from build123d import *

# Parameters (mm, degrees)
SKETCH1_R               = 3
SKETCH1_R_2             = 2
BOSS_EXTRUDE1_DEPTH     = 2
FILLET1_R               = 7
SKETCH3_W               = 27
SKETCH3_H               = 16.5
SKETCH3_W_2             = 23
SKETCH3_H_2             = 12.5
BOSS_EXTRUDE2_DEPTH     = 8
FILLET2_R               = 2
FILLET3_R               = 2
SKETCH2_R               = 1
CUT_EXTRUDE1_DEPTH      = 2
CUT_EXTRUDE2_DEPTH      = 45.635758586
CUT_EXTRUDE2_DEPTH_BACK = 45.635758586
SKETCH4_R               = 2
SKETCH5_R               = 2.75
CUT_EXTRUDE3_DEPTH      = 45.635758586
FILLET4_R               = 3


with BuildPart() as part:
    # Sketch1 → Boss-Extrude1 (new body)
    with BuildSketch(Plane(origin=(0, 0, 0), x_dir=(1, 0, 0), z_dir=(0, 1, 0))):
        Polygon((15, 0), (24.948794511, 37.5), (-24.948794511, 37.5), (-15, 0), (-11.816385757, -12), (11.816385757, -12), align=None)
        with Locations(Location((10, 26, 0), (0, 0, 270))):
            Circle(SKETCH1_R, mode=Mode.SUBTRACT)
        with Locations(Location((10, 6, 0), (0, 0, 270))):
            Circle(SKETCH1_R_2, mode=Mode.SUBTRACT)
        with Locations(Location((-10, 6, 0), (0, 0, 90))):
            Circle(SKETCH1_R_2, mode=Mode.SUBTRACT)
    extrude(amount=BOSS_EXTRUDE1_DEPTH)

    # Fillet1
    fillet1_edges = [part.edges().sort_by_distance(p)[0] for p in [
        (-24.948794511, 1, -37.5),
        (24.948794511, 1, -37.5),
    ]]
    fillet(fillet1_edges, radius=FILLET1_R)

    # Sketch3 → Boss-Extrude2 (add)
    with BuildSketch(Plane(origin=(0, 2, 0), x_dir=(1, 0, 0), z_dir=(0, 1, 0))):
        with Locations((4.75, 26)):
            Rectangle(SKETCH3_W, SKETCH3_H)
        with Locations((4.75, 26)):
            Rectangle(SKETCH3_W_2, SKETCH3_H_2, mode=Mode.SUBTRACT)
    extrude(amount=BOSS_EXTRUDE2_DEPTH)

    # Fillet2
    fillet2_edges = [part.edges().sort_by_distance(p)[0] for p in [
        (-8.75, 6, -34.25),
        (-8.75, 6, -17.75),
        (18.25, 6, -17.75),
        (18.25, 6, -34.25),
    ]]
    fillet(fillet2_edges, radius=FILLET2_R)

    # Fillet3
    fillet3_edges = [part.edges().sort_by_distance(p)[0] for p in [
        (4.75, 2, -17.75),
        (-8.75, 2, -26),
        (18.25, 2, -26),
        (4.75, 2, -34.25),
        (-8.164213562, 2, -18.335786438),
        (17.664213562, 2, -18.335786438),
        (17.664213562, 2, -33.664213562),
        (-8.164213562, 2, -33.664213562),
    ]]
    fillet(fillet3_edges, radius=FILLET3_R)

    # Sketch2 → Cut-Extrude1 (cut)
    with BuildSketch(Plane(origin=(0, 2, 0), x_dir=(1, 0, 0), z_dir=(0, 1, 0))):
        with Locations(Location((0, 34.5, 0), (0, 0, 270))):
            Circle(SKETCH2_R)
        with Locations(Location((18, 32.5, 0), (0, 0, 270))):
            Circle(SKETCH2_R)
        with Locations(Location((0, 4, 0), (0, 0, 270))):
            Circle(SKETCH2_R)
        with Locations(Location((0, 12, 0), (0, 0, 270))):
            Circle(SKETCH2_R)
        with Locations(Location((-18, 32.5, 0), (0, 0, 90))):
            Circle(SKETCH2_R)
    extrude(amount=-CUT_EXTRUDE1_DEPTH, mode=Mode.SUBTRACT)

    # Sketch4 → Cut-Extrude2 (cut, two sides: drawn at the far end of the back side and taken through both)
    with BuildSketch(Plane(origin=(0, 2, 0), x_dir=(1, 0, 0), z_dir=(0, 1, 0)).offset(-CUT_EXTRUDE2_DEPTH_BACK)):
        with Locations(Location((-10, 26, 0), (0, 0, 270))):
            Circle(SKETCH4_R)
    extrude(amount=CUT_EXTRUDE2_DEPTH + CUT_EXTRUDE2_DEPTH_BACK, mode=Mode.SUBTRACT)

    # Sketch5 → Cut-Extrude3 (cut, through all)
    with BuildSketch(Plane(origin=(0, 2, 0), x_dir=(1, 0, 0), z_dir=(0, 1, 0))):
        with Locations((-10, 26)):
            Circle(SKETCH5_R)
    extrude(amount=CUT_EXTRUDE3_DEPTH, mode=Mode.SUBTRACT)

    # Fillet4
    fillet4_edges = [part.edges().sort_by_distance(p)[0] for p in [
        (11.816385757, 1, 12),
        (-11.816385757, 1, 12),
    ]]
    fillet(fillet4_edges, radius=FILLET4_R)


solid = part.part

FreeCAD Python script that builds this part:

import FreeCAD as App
import Part
import Sketcher


def edges_at(feature, points):
    """Names of the edges that pass closest to the given points."""
    edges = feature.Shape.Edges
    near = lambda p: min(range(len(edges)), key=lambda i: edges[i].distToShape(Part.Vertex(*p))[0])
    return sorted({f"Edge{near(p) + 1}" for p in points})


def add_polygon(sketch, points):
    """Adds a closed chain of lines whose ends are joined by coincident constraints."""
    first, n = sketch.GeometryCount, len(points)
    for a, b in zip(points, points[1:] + points[:1]):
        sketch.addGeometry(Part.LineSegment(App.Vector(*a, 0), App.Vector(*b, 0)), False)
    for i in range(n):
        sketch.addConstraint(Sketcher.Constraint("Coincident", first + i, 2, first + (i + 1) % n, 1))

doc = App.newDocument("Part")
body = doc.addObject("PartDesign::Body", "Body")

# Sketch on XZ plane
sketch1 = body.newObject("Sketcher::SketchObject", "Sketch")
sketch1.AttachmentSupport = (doc.getObject("XZ_Plane"), [""])
sketch1.MapMode = "FlatFace"
add_polygon(sketch1, [(15, 0), (24.948795, -37.5), (-24.948795, -37.5), (-15, 0), (-11.816386, 12), (11.816386, 12)])  # lines 0-5
sketch1.addGeometry(Part.Circle(App.Vector(-10, -6, 0), App.Vector(0, 0, 1), 2), False)  # 6
sketch1.addGeometry(Part.Circle(App.Vector(10, -6, 0), App.Vector(0, 0, 1), 2), False)  # 7
sketch1.addGeometry(Part.Circle(App.Vector(10, -26, 0), App.Vector(0, 0, 1), 3), False)  # 8
sketch1.addConstraint(Sketcher.Constraint("Horizontal", 1))
sketch1.addConstraint(Sketcher.Constraint("Horizontal", 4))
sketch1.addConstraint(Sketcher.Constraint("Equal", 6, 7))
sketch1.addConstraint(Sketcher.Constraint("Symmetric", 2, 2, 5, 2, -1, 1))
sketch1.addConstraint(Sketcher.Constraint("Symmetric", 6, 3, 7, 3, -2))
sketch1.addConstraint(Sketcher.Constraint("PointOnObject", 2, 2, -1))
sketch1.addConstraint(Sketcher.Constraint("Parallel", 2, 3))
sketch1.addConstraint(Sketcher.Constraint("Parallel", 0, 5))
sketch1.addConstraint(Sketcher.Constraint("Vertical", 7, 3, 8, 3))
sketch1.addConstraint(Sketcher.Constraint("Equal", 0, 2))
sketch1.addConstraint(Sketcher.Constraint("Diameter", 6, 4.0))
sketch1.addConstraint(Sketcher.Constraint("Diameter", 8, 6.0))
sketch1.addConstraint(Sketcher.Constraint("DistanceX", 6, 3, -1, 1, 10.0))
sketch1.addConstraint(Sketcher.Constraint("DistanceY", 6, 3, -1, 1, 6.0))
sketch1.addConstraint(Sketcher.Constraint("DistanceY", 8, 3, -1, 1, 26.0))
sketch1.addConstraint(Sketcher.Constraint("DistanceX", 2, 2, -1, 1, 15.0))
sketch1.addConstraint(Sketcher.Constraint("DistanceY", -1, 1, 3, 2, 12.0))
sketch1.addConstraint(Sketcher.Constraint("DistanceY", 0, 2, -1, 1, 37.5))
sketch1.addConstraint(Sketcher.Constraint("DistanceX", 1, 2, 1, 1, 49.897589))
pad1 = body.newObject("PartDesign::Pad", "Pad")
pad1.Profile = sketch1
pad1.Length = 2
pad1.Reversed = True
doc.recompute()

fillet = body.newObject("PartDesign::Fillet", "Fillet")
fillet.Base = (pad1, edges_at(pad1, [(-24.949, 1, -37.5), (24.949, 1, -37.5)]))
fillet.Radius = 7

# Sketch on XZ plane
sketch2 = body.newObject("Sketcher::SketchObject", "Sketch001")
sketch2.AttachmentSupport = (doc.getObject("XZ_Plane"), [""])
sketch2.MapMode = "FlatFace"
sketch2.AttachmentOffset = App.Placement(App.Vector(0, 0, -2), App.Rotation())
add_polygon(sketch2, [(-8.75, -34.25), (-8.75, -17.75), (18.25, -17.75), (18.25, -34.25)])  # lines 0-3
add_polygon(sketch2, [(16.25, -19.75), (-6.75, -19.75), (-6.75, -32.25), (16.25, -32.25)])  # lines 4-7
sketch2.addConstraint(Sketcher.Constraint("Vertical", 0))
sketch2.addConstraint(Sketcher.Constraint("Horizontal", 1))
sketch2.addConstraint(Sketcher.Constraint("Vertical", 2))
sketch2.addConstraint(Sketcher.Constraint("Horizontal", 3))
sketch2.addConstraint(Sketcher.Constraint("Horizontal", 4))
sketch2.addConstraint(Sketcher.Constraint("Vertical", 5))
sketch2.addConstraint(Sketcher.Constraint("Horizontal", 6))
sketch2.addConstraint(Sketcher.Constraint("Vertical", 7))
sketch2.addConstraint(Sketcher.Constraint("DistanceX", 1, 1, 1, 2, 27.0))
sketch2.addConstraint(Sketcher.Constraint("DistanceX", 4, 2, 4, 1, 23.0))
sketch2.addConstraint(Sketcher.Constraint("DistanceY", 0, 1, 0, 2, 16.5))
sketch2.addConstraint(Sketcher.Constraint("DistanceY", 5, 2, 5, 1, 12.5))
sketch2.addConstraint(Sketcher.Constraint("DistanceX", 0, 2, 4, 2, 2.0))
sketch2.addConstraint(Sketcher.Constraint("DistanceY", 4, 2, 0, 2, 2.0))
sketch2.addConstraint(Sketcher.Constraint("DistanceX", 0, 2, -1, 1, 8.75))
sketch2.addConstraint(Sketcher.Constraint("DistanceY", 0, 2, -1, 1, 17.75))
pad2 = body.newObject("PartDesign::Pad", "Pad001")
pad2.Profile = sketch2
pad2.Length = 8
pad2.Reversed = True
doc.recompute()

fillet2 = body.newObject("PartDesign::Fillet", "Fillet001")
fillet2.Base = (pad2, edges_at(pad2, [
    (-8.75, 6, -34.25),
    (-8.75, 6, -17.75),
    (18.25, 6, -17.75),
    (18.25, 6, -34.25),
]))
fillet2.Radius = 2
doc.recompute()

fillet3 = body.newObject("PartDesign::Fillet", "Fillet002")
fillet3.Base = (fillet2, edges_at(fillet2, [
    (4.75, 2, -17.75),
    (-8.75, 2, -26),
    (18.25, 2, -26),
    (4.75, 2, -34.25),
    (-8.164, 2, -18.336),
    (17.664, 2, -18.336),
    (17.664, 2, -33.664),
    (-8.164, 2, -33.664),
]))
fillet3.Radius = 2

# Sketch on XZ plane
sketch3 = body.newObject("Sketcher::SketchObject", "Sketch002")
sketch3.AttachmentSupport = (doc.getObject("XZ_Plane"), [""])
sketch3.MapMode = "FlatFace"
sketch3.AttachmentOffset = App.Placement(App.Vector(0, 0, -2), App.Rotation())
sketch3.addGeometry(Part.Circle(App.Vector(0, -34.5, 0), App.Vector(0, 0, 1), 1), False)
sketch3.addGeometry(Part.Circle(App.Vector(18, -32.5, 0), App.Vector(0, 0, 1), 1), False)
sketch3.addGeometry(Part.Circle(App.Vector(0, -4, 0), App.Vector(0, 0, 1), 1), False)
sketch3.addGeometry(Part.Circle(App.Vector(0, -12, 0), App.Vector(0, 0, 1), 1), False)
sketch3.addGeometry(Part.Circle(App.Vector(-18, -32.5, 0), App.Vector(0, 0, 1), 1), False)
sketch3.addConstraint(Sketcher.Constraint("Equal", 0, 1))
sketch3.addConstraint(Sketcher.Constraint("Equal", 1, 2))
sketch3.addConstraint(Sketcher.Constraint("Equal", 2, 3))
sketch3.addConstraint(Sketcher.Constraint("Equal", 3, 4))
sketch3.addConstraint(Sketcher.Constraint("Symmetric", 1, 3, 4, 3, -2))
sketch3.addConstraint(Sketcher.Constraint("PointOnObject", 0, 3, -2))
sketch3.addConstraint(Sketcher.Constraint("PointOnObject", 2, 3, -2))
sketch3.addConstraint(Sketcher.Constraint("PointOnObject", 3, 3, -2))
sketch3.addConstraint(Sketcher.Constraint("Diameter", 0, 2.0))
sketch3.addConstraint(Sketcher.Constraint("DistanceX", -1, 1, 1, 3, 18.0))
sketch3.addConstraint(Sketcher.Constraint("DistanceY", 2, 3, -1, 1, 4.0))
sketch3.addConstraint(Sketcher.Constraint("DistanceY", 3, 3, -1, 1, 12.0))
sketch3.addConstraint(Sketcher.Constraint("DistanceY", 0, 3, 1, 3, 2.0))
sketch3.addConstraint(Sketcher.Constraint("DistanceY", 0, 3, -1, 1, 34.5))
pocket1 = body.newObject("PartDesign::Pocket", "Pocket")
pocket1.Profile = sketch3
pocket1.Length = 2
pocket1.Reversed = True

# Sketch on XZ plane
sketch4 = body.newObject("Sketcher::SketchObject", "Sketch003")
sketch4.AttachmentSupport = (doc.getObject("XZ_Plane"), [""])
sketch4.MapMode = "FlatFace"
sketch4.AttachmentOffset = App.Placement(App.Vector(0, 0, -2), App.Rotation())
sketch4.addGeometry(Part.Circle(App.Vector(-10, -26, 0), App.Vector(0, 0, 1), 2), False)
sketch4.addConstraint(Sketcher.Constraint("Diameter", 0, 4.0))
sketch4.addConstraint(Sketcher.Constraint("DistanceX", 0, 3, -1, 1, 10.0))
sketch4.addConstraint(Sketcher.Constraint("DistanceY", 0, 3, -1, 1, 26.0))
pocket2 = body.newObject("PartDesign::Pocket", "Pocket001")
pocket2.Profile = sketch4
pocket2.Type = "ThroughAll"
pocket2.Midplane = True

# Sketch on XZ plane
sketch5 = body.newObject("Sketcher::SketchObject", "Sketch004")
sketch5.AttachmentSupport = (doc.getObject("XZ_Plane"), [""])
sketch5.MapMode = "FlatFace"
sketch5.AttachmentOffset = App.Placement(App.Vector(0, 0, -2), App.Rotation())
sketch5.addGeometry(Part.Circle(App.Vector(-10, -26, 0), App.Vector(0, 0, 1), 2.75), False)
sketch5.addConstraint(Sketcher.Constraint("Diameter", 0, 5.5))
sketch5.addConstraint(Sketcher.Constraint("DistanceX", 0, 3, -1, 1, 10.0))
sketch5.addConstraint(Sketcher.Constraint("DistanceY", 0, 3, -1, 1, 26.0))
pocket3 = body.newObject("PartDesign::Pocket", "Pocket002")
pocket3.Profile = sketch5
pocket3.Type = "ThroughAll"
doc.recompute()

fillet4 = body.newObject("PartDesign::Fillet", "Fillet003")
fillet4.Base = (pocket3, edges_at(pocket3, [(11.816, 1, 12), (-11.816, 1, 12)]))
fillet4.Radius = 3

doc.recompute()
